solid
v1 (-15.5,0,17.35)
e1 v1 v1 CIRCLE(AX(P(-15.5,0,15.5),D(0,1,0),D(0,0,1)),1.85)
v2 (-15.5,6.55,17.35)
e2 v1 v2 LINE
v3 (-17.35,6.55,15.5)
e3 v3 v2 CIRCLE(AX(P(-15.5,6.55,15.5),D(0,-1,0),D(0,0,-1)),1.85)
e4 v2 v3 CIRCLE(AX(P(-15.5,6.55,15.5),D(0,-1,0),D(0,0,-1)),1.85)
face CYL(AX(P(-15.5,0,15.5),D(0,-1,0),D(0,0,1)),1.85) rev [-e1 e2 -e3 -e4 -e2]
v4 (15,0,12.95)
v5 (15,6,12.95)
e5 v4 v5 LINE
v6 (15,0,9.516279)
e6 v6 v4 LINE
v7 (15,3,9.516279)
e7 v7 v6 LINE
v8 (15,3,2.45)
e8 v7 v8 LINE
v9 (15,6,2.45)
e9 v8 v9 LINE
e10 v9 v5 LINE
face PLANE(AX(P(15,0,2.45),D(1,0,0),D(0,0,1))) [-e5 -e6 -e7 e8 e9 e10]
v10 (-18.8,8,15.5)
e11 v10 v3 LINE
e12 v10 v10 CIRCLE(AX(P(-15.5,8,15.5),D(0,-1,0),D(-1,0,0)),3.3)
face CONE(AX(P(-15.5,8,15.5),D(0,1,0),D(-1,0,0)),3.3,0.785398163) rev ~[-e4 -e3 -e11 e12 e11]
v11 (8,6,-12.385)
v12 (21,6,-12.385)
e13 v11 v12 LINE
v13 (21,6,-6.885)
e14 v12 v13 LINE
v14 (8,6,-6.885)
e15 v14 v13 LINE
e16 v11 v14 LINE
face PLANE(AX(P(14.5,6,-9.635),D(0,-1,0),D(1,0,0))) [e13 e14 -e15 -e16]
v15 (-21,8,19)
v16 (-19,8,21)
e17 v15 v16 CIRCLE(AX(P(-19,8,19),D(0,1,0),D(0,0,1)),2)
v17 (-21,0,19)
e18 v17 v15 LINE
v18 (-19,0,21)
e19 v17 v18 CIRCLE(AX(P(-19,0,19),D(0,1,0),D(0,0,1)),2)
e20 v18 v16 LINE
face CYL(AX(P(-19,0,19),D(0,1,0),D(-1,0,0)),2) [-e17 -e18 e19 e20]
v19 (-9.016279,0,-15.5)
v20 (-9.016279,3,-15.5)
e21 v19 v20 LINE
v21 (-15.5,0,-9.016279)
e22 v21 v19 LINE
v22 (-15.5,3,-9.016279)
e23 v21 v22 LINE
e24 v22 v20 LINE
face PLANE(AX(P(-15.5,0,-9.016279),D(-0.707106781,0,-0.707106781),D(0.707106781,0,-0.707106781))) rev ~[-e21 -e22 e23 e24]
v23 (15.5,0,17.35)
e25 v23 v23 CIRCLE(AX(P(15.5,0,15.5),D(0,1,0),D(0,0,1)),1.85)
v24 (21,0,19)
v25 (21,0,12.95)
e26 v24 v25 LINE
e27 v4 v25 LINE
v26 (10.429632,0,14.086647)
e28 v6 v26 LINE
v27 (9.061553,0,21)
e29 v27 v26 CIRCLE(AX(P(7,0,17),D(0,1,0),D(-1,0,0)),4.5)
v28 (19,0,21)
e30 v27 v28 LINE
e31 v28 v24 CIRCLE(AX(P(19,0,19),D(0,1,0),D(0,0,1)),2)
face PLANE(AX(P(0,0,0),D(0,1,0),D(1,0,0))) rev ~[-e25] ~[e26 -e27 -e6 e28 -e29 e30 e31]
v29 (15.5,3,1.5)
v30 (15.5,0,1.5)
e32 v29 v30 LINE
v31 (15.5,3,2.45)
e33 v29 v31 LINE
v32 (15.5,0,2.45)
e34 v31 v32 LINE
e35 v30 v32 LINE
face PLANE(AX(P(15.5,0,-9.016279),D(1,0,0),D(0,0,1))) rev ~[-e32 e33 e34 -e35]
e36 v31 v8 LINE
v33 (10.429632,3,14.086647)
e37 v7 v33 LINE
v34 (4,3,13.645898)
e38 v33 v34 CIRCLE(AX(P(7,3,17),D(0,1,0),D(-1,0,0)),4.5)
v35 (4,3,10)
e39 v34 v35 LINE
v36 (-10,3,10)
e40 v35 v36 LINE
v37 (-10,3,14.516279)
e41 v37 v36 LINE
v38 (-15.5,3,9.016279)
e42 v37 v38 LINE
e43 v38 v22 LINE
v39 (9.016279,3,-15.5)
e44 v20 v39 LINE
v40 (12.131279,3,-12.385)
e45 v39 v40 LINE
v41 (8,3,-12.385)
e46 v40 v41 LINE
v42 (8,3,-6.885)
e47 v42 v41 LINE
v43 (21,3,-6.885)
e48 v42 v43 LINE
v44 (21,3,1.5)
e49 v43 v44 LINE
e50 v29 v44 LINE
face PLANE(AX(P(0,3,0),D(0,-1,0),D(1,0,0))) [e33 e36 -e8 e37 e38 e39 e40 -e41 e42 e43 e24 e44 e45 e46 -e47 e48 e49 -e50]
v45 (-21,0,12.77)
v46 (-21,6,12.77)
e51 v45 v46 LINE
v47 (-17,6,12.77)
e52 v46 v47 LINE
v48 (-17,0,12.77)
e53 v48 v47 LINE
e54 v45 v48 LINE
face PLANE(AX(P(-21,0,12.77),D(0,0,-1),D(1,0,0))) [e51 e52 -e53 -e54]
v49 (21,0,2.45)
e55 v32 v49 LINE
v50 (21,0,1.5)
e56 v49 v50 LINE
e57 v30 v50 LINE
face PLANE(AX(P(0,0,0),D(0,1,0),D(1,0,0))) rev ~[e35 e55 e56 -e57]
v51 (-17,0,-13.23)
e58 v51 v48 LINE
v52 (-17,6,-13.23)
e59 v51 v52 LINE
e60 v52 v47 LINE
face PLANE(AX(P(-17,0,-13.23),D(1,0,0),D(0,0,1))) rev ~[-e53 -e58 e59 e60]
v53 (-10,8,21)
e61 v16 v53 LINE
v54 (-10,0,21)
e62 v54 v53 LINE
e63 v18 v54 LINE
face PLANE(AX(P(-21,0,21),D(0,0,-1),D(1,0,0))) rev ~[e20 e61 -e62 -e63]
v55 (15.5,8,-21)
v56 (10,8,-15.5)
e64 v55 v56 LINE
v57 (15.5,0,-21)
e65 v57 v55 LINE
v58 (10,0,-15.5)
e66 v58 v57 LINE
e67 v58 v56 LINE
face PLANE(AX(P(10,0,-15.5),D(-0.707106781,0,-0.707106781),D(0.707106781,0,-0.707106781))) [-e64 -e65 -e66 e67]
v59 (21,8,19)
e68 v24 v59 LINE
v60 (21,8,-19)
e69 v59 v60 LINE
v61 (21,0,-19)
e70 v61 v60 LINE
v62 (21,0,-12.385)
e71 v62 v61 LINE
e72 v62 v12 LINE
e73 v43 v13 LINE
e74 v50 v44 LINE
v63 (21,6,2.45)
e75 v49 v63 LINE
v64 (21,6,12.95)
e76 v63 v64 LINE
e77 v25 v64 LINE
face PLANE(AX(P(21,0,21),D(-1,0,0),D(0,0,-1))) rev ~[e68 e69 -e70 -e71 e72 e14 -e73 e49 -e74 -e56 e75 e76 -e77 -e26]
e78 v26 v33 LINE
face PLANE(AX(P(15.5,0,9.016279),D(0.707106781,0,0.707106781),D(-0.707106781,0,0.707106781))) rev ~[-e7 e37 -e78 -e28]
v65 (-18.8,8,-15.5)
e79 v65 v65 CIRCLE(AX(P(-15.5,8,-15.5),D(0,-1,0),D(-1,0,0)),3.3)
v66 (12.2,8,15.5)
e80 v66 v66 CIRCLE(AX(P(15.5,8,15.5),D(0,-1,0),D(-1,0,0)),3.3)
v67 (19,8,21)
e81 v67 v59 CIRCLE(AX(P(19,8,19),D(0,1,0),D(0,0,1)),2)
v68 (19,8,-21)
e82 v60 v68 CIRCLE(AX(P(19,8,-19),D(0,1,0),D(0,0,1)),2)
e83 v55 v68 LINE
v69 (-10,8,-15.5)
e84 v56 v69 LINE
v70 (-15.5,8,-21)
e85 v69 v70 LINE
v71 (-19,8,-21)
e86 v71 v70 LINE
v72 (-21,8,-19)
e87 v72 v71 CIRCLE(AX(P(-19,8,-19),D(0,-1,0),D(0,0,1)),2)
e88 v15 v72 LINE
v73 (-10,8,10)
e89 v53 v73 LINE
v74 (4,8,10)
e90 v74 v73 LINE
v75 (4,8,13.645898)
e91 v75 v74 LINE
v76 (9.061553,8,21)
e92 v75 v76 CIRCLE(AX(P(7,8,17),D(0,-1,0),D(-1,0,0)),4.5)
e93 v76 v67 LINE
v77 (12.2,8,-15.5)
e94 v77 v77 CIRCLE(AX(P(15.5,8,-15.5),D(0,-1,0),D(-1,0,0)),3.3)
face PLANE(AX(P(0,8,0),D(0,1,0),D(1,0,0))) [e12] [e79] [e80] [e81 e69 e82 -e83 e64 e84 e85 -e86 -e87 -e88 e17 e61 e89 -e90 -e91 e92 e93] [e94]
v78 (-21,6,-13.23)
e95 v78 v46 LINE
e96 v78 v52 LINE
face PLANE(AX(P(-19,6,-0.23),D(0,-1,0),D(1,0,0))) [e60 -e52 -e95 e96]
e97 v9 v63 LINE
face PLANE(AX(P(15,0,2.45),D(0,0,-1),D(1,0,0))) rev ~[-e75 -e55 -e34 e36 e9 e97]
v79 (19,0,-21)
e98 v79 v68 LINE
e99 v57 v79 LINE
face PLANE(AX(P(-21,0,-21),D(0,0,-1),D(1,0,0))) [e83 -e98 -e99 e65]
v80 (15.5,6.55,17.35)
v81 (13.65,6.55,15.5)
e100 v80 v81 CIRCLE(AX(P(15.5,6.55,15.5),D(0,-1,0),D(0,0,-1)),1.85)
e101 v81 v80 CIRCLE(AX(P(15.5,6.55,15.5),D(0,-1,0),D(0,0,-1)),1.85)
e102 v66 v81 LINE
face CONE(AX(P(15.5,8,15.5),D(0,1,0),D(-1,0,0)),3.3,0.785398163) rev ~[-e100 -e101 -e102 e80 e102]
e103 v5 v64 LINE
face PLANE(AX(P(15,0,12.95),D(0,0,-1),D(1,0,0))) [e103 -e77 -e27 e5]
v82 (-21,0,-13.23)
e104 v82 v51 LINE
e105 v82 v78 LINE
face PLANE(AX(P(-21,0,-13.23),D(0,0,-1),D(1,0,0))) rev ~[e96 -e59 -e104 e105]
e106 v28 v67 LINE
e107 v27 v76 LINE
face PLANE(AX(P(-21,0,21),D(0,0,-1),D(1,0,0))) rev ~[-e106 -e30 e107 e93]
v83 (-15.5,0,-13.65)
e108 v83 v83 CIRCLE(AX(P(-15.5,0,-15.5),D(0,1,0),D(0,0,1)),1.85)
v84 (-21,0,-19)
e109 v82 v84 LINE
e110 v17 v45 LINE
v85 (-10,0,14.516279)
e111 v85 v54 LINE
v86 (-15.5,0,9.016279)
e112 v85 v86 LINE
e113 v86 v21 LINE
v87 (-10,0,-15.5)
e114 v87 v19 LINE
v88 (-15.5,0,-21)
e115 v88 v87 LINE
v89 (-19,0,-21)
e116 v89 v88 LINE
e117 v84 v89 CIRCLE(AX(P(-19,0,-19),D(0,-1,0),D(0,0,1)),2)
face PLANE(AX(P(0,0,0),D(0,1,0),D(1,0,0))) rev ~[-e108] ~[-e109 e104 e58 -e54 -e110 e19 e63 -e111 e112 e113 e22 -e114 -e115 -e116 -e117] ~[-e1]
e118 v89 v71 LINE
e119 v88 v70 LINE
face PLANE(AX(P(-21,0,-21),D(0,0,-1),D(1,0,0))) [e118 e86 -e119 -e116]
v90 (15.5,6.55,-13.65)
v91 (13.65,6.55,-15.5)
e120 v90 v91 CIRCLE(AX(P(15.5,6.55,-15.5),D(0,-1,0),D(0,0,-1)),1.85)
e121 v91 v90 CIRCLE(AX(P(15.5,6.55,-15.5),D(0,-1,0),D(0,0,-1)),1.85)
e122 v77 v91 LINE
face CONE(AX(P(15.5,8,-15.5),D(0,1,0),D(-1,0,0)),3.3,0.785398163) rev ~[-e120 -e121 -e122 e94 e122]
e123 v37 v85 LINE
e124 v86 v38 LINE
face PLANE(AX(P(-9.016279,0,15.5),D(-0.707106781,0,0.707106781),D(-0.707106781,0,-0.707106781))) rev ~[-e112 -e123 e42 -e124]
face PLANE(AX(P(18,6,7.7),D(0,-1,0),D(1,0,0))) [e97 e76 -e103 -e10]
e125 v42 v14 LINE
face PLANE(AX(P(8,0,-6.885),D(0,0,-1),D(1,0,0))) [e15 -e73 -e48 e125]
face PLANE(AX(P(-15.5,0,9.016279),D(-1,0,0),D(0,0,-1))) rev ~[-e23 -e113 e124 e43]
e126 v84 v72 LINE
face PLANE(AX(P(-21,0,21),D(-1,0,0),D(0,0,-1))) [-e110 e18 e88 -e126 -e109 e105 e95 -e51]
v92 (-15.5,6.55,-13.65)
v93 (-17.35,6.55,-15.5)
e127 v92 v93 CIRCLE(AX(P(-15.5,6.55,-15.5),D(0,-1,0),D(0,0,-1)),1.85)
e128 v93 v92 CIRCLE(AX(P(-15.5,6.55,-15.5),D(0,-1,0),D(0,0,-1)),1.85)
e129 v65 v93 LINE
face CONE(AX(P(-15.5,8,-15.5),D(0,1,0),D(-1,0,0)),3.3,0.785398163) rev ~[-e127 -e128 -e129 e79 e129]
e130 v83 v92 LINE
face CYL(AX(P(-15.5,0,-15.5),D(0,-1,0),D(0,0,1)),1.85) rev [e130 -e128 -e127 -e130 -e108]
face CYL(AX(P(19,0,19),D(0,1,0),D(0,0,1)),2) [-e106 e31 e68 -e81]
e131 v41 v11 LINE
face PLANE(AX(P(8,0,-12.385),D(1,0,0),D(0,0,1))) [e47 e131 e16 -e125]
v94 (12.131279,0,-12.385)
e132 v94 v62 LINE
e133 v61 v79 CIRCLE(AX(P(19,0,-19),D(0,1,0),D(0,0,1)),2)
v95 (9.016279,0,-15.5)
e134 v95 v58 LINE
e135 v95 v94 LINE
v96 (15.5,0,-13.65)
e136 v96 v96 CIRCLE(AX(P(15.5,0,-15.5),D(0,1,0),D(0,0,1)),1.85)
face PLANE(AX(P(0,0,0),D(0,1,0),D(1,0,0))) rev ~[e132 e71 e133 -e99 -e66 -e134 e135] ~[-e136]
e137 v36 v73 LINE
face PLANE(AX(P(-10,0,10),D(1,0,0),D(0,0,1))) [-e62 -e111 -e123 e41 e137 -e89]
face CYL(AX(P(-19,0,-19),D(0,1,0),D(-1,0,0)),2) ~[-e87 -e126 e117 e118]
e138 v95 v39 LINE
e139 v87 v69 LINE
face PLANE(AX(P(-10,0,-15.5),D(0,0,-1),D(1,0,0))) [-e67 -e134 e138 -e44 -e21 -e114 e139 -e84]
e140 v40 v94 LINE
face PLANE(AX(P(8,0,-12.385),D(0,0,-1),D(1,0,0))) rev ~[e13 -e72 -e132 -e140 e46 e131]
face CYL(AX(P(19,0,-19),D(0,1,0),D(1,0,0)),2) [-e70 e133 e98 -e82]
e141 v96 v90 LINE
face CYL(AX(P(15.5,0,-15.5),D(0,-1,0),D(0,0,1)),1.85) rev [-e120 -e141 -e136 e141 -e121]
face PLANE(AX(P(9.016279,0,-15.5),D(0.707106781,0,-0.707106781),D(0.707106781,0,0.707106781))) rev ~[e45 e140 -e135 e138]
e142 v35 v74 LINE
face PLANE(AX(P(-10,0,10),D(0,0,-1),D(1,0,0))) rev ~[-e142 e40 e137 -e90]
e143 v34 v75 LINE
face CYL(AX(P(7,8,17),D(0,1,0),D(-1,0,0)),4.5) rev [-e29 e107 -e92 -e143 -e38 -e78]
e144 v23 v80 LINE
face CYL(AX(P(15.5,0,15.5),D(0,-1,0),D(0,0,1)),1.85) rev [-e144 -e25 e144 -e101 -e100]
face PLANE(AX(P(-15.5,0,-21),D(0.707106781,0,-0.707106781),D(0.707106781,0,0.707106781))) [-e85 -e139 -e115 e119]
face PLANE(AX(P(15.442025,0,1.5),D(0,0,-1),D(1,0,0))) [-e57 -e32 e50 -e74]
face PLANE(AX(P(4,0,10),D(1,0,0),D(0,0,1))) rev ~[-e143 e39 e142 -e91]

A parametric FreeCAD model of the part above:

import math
import FreeCAD as App
import Part
import Sketcher
from FreeCAD import Vector
Q = App.Units.Quantity


def edges_at(feature, points):
    """Names of the edges that pass closest to the given points."""
    edges = feature.Shape.Edges
    near = lambda p: min(range(len(edges)), key=lambda i: edges[i].distToShape(Part.Vertex(*p))[0])
    return sorted({f"Edge{near(p) + 1}" for p in points})


def add_polygon(sketch, points):
    """Adds a closed chain of lines whose ends are joined by coincident constraints."""
    first, n = sketch.GeometryCount, len(points)
    for a, b in zip(points, points[1:] + points[:1]):
        sketch.addGeometry(Part.LineSegment(App.Vector(*a, 0), App.Vector(*b, 0)), False)
    for i in range(n):
        sketch.addConstraint(Sketcher.Constraint("Coincident", first + i, 2, first + (i + 1) % n, 1))

doc = App.newDocument("Part")
body = doc.addObject("PartDesign::Body", "Body")

sketch1 = body.newObject("Sketcher::SketchObject", "Sketch")
sketch1.AttachmentSupport = (doc.getObject("XZ_Plane"), [""])
sketch1.MapMode = "FlatFace"
add_polygon(sketch1, [(-21, -21), (-21, 21), (21, 21), (21, -21)])
sketch1.addGeometry(Part.Circle(Vector(-15.5, 15.5, 0), Vector(0, 0, 1), 1.85), False)
sketch1.addGeometry(Part.Circle(Vector(15.5, 15.5, 0), Vector(0, 0, 1), 1.85), False)
sketch1.addGeometry(Part.Circle(Vector(-15.5, -15.5, 0), Vector(0, 0, 1), 1.85), False)
sketch1.addGeometry(Part.Circle(Vector(15.5, -15.5, 0), Vector(0, 0, 1), 1.85), False)
sketch1.addConstraint(Sketcher.Constraint("Vertical", 0))
sketch1.addConstraint(Sketcher.Constraint("Horizontal", 1))
sketch1.addConstraint(Sketcher.Constraint("Vertical", 2))
sketch1.addConstraint(Sketcher.Constraint("Horizontal", 3))
sketch1.addConstraint(Sketcher.Constraint("Equal", 4, 5))
sketch1.addConstraint(Sketcher.Constraint("Equal", 5, 6))
sketch1.addConstraint(Sketcher.Constraint("Equal", 6, 7))
sketch1.addConstraint(Sketcher.Constraint("Symmetric", 5, 3, 6, 3, -1, 1))
sketch1.addConstraint(Sketcher.Constraint("Symmetric", 4, 3, 7, 3, -1, 1))
sketch1.addConstraint(Sketcher.Constraint("Symmetric", 0, 2, 2, 2, -1, 1))
sketch1.addConstraint(Sketcher.Constraint("Symmetric", 4, 3, 5, 3, -2))
sketch1.addConstraint(Sketcher.Constraint("Equal", 3, 0))
sketch1.addConstraint(Sketcher.Constraint("Diameter", 4, Q("3.7 mm")))
sketch1.addConstraint(Sketcher.Constraint("DistanceX", 1, 1, 1, 2, Q("42 mm")))
sketch1.addConstraint(Sketcher.Constraint("DistanceX", 4, 3, 5, 3, Q("31 mm")))
sketch1.addConstraint(Sketcher.Constraint("DistanceY", 6, 3, 4, 3, Q("31 mm")))
pad1 = body.newObject("PartDesign::Pad", "Pad")
pad1.Profile = sketch1
pad1.Length = 8
pad1.Reversed = True
doc.recompute()

fillet = body.newObject("PartDesign::Fillet", "Fillet")
fillet.Base = (pad1, edges_at(pad1, [(-21, 4, -21)]))
fillet.Radius = 2
doc.recompute()

fillet2 = body.newObject("PartDesign::Fillet", "Fillet001")
fillet2.Base = (fillet, edges_at(fillet, [(-21, 4, 21)]))
fillet2.Radius = 2
doc.recompute()

fillet3 = body.newObject("PartDesign::Fillet", "Fillet002")
fillet3.Base = (fillet2, edges_at(fillet2, [(21, 4, 21)]))
fillet3.Radius = 2
doc.recompute()

fillet4 = body.newObject("PartDesign::Fillet", "Fillet003")
fillet4.Base = (fillet3, edges_at(fillet3, [(21, 4, -21)]))
fillet4.Radius = 2

sketch2 = body.newObject("Sketcher::SketchObject", "Sketch001")
sketch2.AttachmentSupport = (doc.getObject("XZ_Plane"), [""])
sketch2.MapMode = "FlatFace"
add_polygon(sketch2, [(15, 12.95), (15, 2.45), (21, 2.45), (21, 12.95)])
add_polygon(sketch2, [(-21, 12.77), (-21, -13.23), (-17, -13.23), (-17, 12.77)])
add_polygon(sketch2, [(8, -6.885), (8, -12.385), (21, -12.385), (21, -6.885)])
sketch2.addConstraint(Sketcher.Constraint("Vertical", 0))
sketch2.addConstraint(Sketcher.Constraint("Horizontal", 1))
sketch2.addConstraint(Sketcher.Constraint("Vertical", 2))
sketch2.addConstraint(Sketcher.Constraint("Horizontal", 3))
sketch2.addConstraint(Sketcher.Constraint("Vertical", 4))
sketch2.addConstraint(Sketcher.Constraint("Horizontal", 5))
sketch2.addConstraint(Sketcher.Constraint("Vertical", 6))
sketch2.addConstraint(Sketcher.Constraint("Horizontal", 7))
sketch2.addConstraint(Sketcher.Constraint("Vertical", 8))
sketch2.addConstraint(Sketcher.Constraint("Horizontal", 9))
sketch2.addConstraint(Sketcher.Constraint("Vertical", 10))
sketch2.addConstraint(Sketcher.Constraint("Horizontal", 11))
sketch2.addConstraint(Sketcher.Constraint("Vertical", 2, 2, 9, 2))
sketch2.addConstraint(Sketcher.Constraint("DistanceX", 1, 1, 1, 2, Q("6 mm")))
sketch2.addConstraint(Sketcher.Constraint("DistanceX", 5, 1, 5, 2, Q("4 mm")))
sketch2.addConstraint(Sketcher.Constraint("DistanceX", 9, 1, 9, 2, Q("13 mm")))
sketch2.addConstraint(Sketcher.Constraint("DistanceY", 4, 2, 4, 1, Q("26 mm")))
sketch2.addConstraint(Sketcher.Constraint("DistanceY", 0, 2, 0, 1, Q("10.5 mm")))
sketch2.addConstraint(Sketcher.Constraint("DistanceY", 8, 2, 8, 1, Q("5.5 mm")))
sketch2.addConstraint(Sketcher.Constraint("DistanceX", -1, 1, 0, 2, Q("15 mm")))
sketch2.addConstraint(Sketcher.Constraint("DistanceX", 4, 2, -1, 1, Q("21 mm")))
sketch2.addConstraint(Sketcher.Constraint("DistanceY", -1, 1, 0, 2, Q("2.45 mm")))
sketch2.addConstraint(Sketcher.Constraint("DistanceY", 4, 2, -1, 1, Q("13.23 mm")))
sketch2.addConstraint(Sketcher.Constraint("DistanceY", 8, 2, -1, 1, Q("12.385 mm")))
pocket1 = body.newObject("PartDesign::Pocket", "Pocket")
pocket1.Profile = sketch2
pocket1.Length = 6

sketch3 = body.newObject("Sketcher::SketchObject", "Sketch002")
sketch3.AttachmentSupport = (doc.getObject("XZ_Plane"), [""])
sketch3.MapMode = "FlatFace"
add_polygon(sketch3, [(15.442025, 1.5), (15.442025, -7.5), (21, -7.5), (21, 1.5)])
sketch3.addConstraint(Sketcher.Constraint("Vertical", 0))
sketch3.addConstraint(Sketcher.Constraint("Horizontal", 1))
sketch3.addConstraint(Sketcher.Constraint("Vertical", 2))
sketch3.addConstraint(Sketcher.Constraint("Horizontal", 3))
sketch3.addConstraint(Sketcher.Constraint("DistanceY", 0, 2, 0, 1, Q("9 mm")))
sketch3.addConstraint(Sketcher.Constraint("DistanceX", -1, 1, 1, 2, Q("21 mm")))
sketch3.addConstraint(Sketcher.Constraint("DistanceY", 0, 2, -1, 1, Q("7.5 mm")))
sketch3.addConstraint(Sketcher.Constraint("DistanceX", 1, 1, 1, 2, Q("5.557975 mm")))
pocket2 = body.newObject("PartDesign::Pocket", "Pocket001")
pocket2.Profile = sketch3
pocket2.Length = 3

sketch4 = body.newObject("Sketcher::SketchObject", "Sketch003")
sketch4.AttachmentSupport = (doc.getObject("XZ_Plane"), [""])
sketch4.MapMode = "FlatFace"
add_polygon(sketch4, [(-10, -15.5), (-15.5, -21), (15.5, -21), (10, -15.5)])
sketch4.addConstraint(Sketcher.Constraint("Horizontal", 1))
sketch4.addConstraint(Sketcher.Constraint("Horizontal", 3))
sketch4.addConstraint(Sketcher.Constraint("Perpendicular", 0, 2))
sketch4.addConstraint(Sketcher.Constraint("Equal", 0, 2))
sketch4.addConstraint(Sketcher.Constraint("DistanceX", 1, 1, 1, 2, Q("31 mm")))
sketch4.addConstraint(Sketcher.Constraint("DistanceX", 3, 2, 3, 1, Q("20 mm")))
sketch4.addConstraint(Sketcher.Constraint("DistanceY", 0, 2, -1, 1, Q("21 mm")))
sketch4.addConstraint(Sketcher.Constraint("DistanceX", -1, 1, 2, 2, Q("10 mm")))
pocket3 = body.newObject("PartDesign::Pocket", "Pocket002")
pocket3.Profile = sketch4
pocket3.Type = "ThroughAll"

sketch5 = body.newObject("Sketcher::SketchObject", "Sketch004")
sketch5.AttachmentSupport = (doc.getObject("XZ_Plane"), [""])
sketch5.MapMode = "FlatFace"
sketch5.AttachmentOffset = App.Placement(Vector(0, 0, -8), App.Rotation())
sketch5.addGeometry(Part.LineSegment(Vector(2.5, 21.5, 0), Vector(7, 21.5, 0)), False)
sketch5.addGeometry(Part.ArcOfCircle(Part.Circle(Vector(7, 17, 0), Vector(0, 0, 1), 4.5), math.radians(180), math.radians(450)), False)
sketch5.addGeometry(Part.LineSegment(Vector(2.5, 17, 0), Vector(2.5, 21.5, 0)), False)
sketch5.addConstraint(Sketcher.Constraint("Tangent", 0, 2, 1, 2))
sketch5.addConstraint(Sketcher.Constraint("Tangent", 1, 1, 2, 1))
sketch5.addConstraint(Sketcher.Constraint("Coincident", 2, 2, 0, 1))
sketch5.addConstraint(Sketcher.Constraint("Horizontal", 0))
sketch5.addConstraint(Sketcher.Constraint("Vertical", 2))
sketch5.addConstraint(Sketcher.Constraint("Radius", 1, Q("4.5 mm")))
sketch5.addConstraint(Sketcher.Constraint("DistanceX", -1, 1, 1, 3, Q("7 mm")))
sketch5.addConstraint(Sketcher.Constraint("DistanceY", -1, 1, 1, 3, Q("17 mm")))
pocket4 = body.newObject("PartDesign::Pocket", "Pocket003")
pocket4.Profile = sketch5
pocket4.Type = "ThroughAll"
pocket4.Reversed = True

sketch6 = body.newObject("Sketcher::SketchObject", "Sketch005")
sketch6.AttachmentSupport = (doc.getObject("XZ_Plane"), [""])
sketch6.MapMode = "FlatFace"
add_polygon(sketch6, [(-10, 21), (-10, 10), (4, 10), (4, 21)])
sketch6.addConstraint(Sketcher.Constraint("Vertical", 0))
sketch6.addConstraint(Sketcher.Constraint("Horizontal", 1))
sketch6.addConstraint(Sketcher.Constraint("Vertical", 2))
sketch6.addConstraint(Sketcher.Constraint("Horizontal", 3))
sketch6.addConstraint(Sketcher.Constraint("DistanceX", 1, 1, 1, 2, Q("14 mm")))
sketch6.addConstraint(Sketcher.Constraint("DistanceY", 0, 2, 0, 1, Q("11 mm")))
sketch6.addConstraint(Sketcher.Constraint("DistanceX", 0, 2, -1, 1, Q("10 mm")))
sketch6.addConstraint(Sketcher.Constraint("DistanceY", -1, 1, 0, 2, Q("10 mm")))
pocket5 = body.newObject("PartDesign::Pocket", "Pocket004")
pocket5.Profile = sketch6
pocket5.Type = "ThroughAll"

sketch7 = body.newObject("Sketcher::SketchObject", "Sketch006")
sketch7.AttachmentSupport = (doc.getObject("XZ_Plane"), [""])
sketch7.MapMode = "FlatFace"
add_polygon(sketch7, [(-9.016279, 15.5), (-15.5, 9.016279), (-15.5, -9.016279), (-9.016279, -15.5), (9.016279, -15.5), (15.5, -9.016279), (15.5, 9.016279), (9.016279, 15.5)])
sketch7.addConstraint(Sketcher.Constraint("Vertical", 1))
sketch7.addConstraint(Sketcher.Constraint("Horizontal", 3))
sketch7.addConstraint(Sketcher.Constraint("Vertical", 5))
sketch7.addConstraint(Sketcher.Constraint("Horizontal", 7))
sketch7.addConstraint(Sketcher.Constraint("Symmetric", 0, 2, 4, 2, -1, 1))
sketch7.addConstraint(Sketcher.Constraint("Symmetric", 2, 2, 6, 2, -1, 1))
sketch7.addConstraint(Sketcher.Constraint("Perpendicular", 0, 2))
sketch7.addConstraint(Sketcher.Constraint("Perpendicular", 2, 4))
sketch7.addConstraint(Sketcher.Constraint("Perpendicular", 4, 6))
sketch7.addConstraint(Sketcher.Constraint("Horizontal", 1, 2, 4, 2))
sketch7.addConstraint(Sketcher.Constraint("Vertical", 3, 2, 6, 2))
sketch7.addConstraint(Sketcher.Constraint("Equal", 7, 1))
sketch7.addConstraint(Sketcher.Constraint("DistanceX", 1, 2, 4, 2, Q("31 mm")))
sketch7.addConstraint(Sketcher.Constraint("DistanceX", 3, 1, 3, 2, Q("18.032558 mm")))
pocket6 = body.newObject("PartDesign::Pocket", "Pocket005")
pocket6.Profile = sketch7
pocket6.Length = 3

sketch8 = body.newObject("Sketcher::SketchObject", "Sketch007")
sketch8.AttachmentSupport = (doc.getObject("XZ_Plane"), [""])
sketch8.MapMode = "FlatFace"
sketch8.AttachmentOffset = App.Placement(Vector(0, 0, -8), App.Rotation())
sketch8.addGeometry(Part.Circle(Vector(15.5, 15.5, 0), Vector(0, 0, 1), 1.8), False)
sketch8.addGeometry(Part.Circle(Vector(-15.5, 15.5, 0), Vector(0, 0, 1), 1.8), False)
sketch8.addGeometry(Part.Circle(Vector(-15.5, -15.5, 0), Vector(0, 0, 1), 1.8), False)
sketch8.addGeometry(Part.Circle(Vector(15.5, -15.5, 0), Vector(0, 0, 1), 1.8), False)
sketch8.addConstraint(Sketcher.Constraint("Equal", 0, 1))
sketch8.addConstraint(Sketcher.Constraint("Equal", 1, 2))
sketch8.addConstraint(Sketcher.Constraint("Equal", 2, 3))
sketch8.addConstraint(Sketcher.Constraint("Symmetric", 0, 3, 2, 3, -1, 1))
sketch8.addConstraint(Sketcher.Constraint("Symmetric", 1, 3, 3, 3, -1, 1))
sketch8.addConstraint(Sketcher.Constraint("Symmetric", 0, 3, 1, 3, -2))
sketch8.addConstraint(Sketcher.Constraint("Diameter", 0, Q("3.6 mm")))
sketch8.addConstraint(Sketcher.Constraint("DistanceX", 1, 3, 0, 3, Q("31 mm")))
sketch8.addConstraint(Sketcher.Constraint("DistanceY", 2, 3, 1, 3, Q("31 mm")))
doc.recompute()
hole = body.newObject("PartDesign::Hole", "Hole")
hole.Profile = sketch8
hole.ThreadType = "None"
hole.Diameter = 3.6
hole.DepthType = "Dimension"
hole.Depth = 8
hole.DrillPoint = "Flat"
hole.HoleCutType = "Countersink"
hole.HoleCutDiameter = 6.6
hole.HoleCutCountersinkAngle = 90
hole.Reversed = True

doc.recompute()
